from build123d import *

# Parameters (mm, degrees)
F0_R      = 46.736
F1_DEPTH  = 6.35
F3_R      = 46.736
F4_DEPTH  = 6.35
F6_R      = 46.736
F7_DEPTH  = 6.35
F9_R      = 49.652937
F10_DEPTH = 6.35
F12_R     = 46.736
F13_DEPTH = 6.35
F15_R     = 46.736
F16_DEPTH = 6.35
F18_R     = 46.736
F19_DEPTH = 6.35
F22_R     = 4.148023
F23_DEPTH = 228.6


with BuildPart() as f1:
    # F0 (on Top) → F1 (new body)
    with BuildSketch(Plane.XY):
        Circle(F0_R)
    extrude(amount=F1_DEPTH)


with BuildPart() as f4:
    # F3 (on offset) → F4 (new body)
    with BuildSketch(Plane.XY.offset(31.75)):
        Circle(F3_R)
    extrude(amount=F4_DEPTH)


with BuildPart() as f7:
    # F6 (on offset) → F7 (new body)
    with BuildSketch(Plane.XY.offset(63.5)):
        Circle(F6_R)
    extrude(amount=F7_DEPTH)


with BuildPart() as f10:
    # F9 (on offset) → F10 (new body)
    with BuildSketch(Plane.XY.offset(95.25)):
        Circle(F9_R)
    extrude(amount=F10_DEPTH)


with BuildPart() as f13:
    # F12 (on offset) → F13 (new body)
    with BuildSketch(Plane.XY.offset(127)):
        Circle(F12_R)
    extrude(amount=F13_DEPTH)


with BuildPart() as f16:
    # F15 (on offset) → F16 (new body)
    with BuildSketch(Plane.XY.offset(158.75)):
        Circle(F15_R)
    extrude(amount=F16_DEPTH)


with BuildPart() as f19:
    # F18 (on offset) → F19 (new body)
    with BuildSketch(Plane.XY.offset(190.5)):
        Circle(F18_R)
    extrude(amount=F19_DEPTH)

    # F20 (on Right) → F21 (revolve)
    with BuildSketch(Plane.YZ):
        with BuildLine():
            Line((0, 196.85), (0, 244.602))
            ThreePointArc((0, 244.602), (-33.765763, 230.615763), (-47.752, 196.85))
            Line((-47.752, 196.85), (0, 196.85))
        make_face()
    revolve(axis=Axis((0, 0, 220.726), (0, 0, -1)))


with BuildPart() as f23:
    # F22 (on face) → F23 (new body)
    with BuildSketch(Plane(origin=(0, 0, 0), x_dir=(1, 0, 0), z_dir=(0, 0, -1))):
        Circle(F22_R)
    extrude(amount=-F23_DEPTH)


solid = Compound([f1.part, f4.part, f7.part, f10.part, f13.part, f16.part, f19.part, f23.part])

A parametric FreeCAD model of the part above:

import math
import FreeCAD as App
import Part
import Sketcher
from FreeCAD import Vector
Q = App.Units.Quantity

doc = App.newDocument("Part")
body = doc.addObject("PartDesign::Body", "Body")

sketch1 = doc.addObject("Sketcher::SketchObject", "Sketch")
body.addObject(sketch1)
sketch1.AttachmentSupport = (doc.XY_Plane, [""])
sketch1.MapMode = "FlatFace"
sketch1.addGeometry(Part.Circle(Vector(0, 0, 0), Vector(0, 0, 1), 47), False)
sketch1.addConstraint([
    Sketcher.Constraint("Coincident", 0, 3, -1, 1),
    Sketcher.Constraint("Diameter", 0, Q("3.68 in")),
])
pad1 = doc.addObject("PartDesign::Pad", "Pad")
body.addObject(pad1)
pad1.Profile = sketch1
pad1.Length = Q("0.25 in")
body2 = doc.addObject("PartDesign::Body", "Body001")

sketch2 = doc.addObject("Sketcher::SketchObject", "Sketch001")
body2.addObject(sketch2)
sketch2.AttachmentSupport = (doc.getObject("XY_Plane001"), [""])
sketch2.MapMode = "FlatFace"
sketch2.AttachmentOffset = App.Placement(Vector(0, 0, 1.25 * 25.4), App.Rotation())
sketch2.addGeometry(Part.Circle(Vector(0, 0, 0), Vector(0, 0, 1), 47), False)
sketch2.addConstraint([
    Sketcher.Constraint("Coincident", 0, 3, -1, 1),
    Sketcher.Constraint("Diameter", 0, Q("3.68 in")),
])
pad2 = doc.addObject("PartDesign::Pad", "Pad001")
body2.addObject(pad2)
pad2.Profile = sketch2
pad2.Length = Q("0.25 in")
body3 = doc.addObject("PartDesign::Body", "Body002")

sketch3 = doc.addObject("Sketcher::SketchObject", "Sketch002")
body3.addObject(sketch3)
sketch3.AttachmentSupport = (doc.getObject("XY_Plane002"), [""])
sketch3.MapMode = "FlatFace"
sketch3.AttachmentOffset = App.Placement(Vector(0, 0, 2.5 * 25.4), App.Rotation())
sketch3.addGeometry(Part.Circle(Vector(0, 0, 0), Vector(0, 0, 1), 47), False)
sketch3.addConstraint([
    Sketcher.Constraint("Coincident", 0, 3, -1, 1),
    Sketcher.Constraint("Diameter", 0, Q("3.68 in")),
])
pad3 = doc.addObject("PartDesign::Pad", "Pad002")
body3.addObject(pad3)
pad3.Profile = sketch3
pad3.Length = Q("0.25 in")
body4 = doc.addObject("PartDesign::Body", "Body003")

sketch4 = doc.addObject("Sketcher::SketchObject", "Sketch003")
body4.addObject(sketch4)
sketch4.AttachmentSupport = (doc.getObject("XY_Plane003"), [""])
sketch4.MapMode = "FlatFace"
sketch4.AttachmentOffset = App.Placement(Vector(0, 0, 3.75 * 25.4), App.Rotation())
sketch4.addGeometry(Part.Circle(Vector(0, 0, 0), Vector(0, 0, 1), 50), False)
sketch4.addConstraint([
    Sketcher.Constraint("Coincident", 0, 3, -1, 1),
    Sketcher.Constraint("Diameter", 0, Q("99.305874 mm")),
])
pad4 = doc.addObject("PartDesign::Pad", "Pad003")
body4.addObject(pad4)
pad4.Profile = sketch4
pad4.Length = Q("0.25 in")
body5 = doc.addObject("PartDesign::Body", "Body004")

sketch5 = doc.addObject("Sketcher::SketchObject", "Sketch004")
body5.addObject(sketch5)
sketch5.AttachmentSupport = (doc.getObject("XY_Plane004"), [""])
sketch5.MapMode = "FlatFace"
sketch5.AttachmentOffset = App.Placement(Vector(0, 0, 5 * 25.4), App.Rotation())
sketch5.addGeometry(Part.Circle(Vector(0, 0, 0), Vector(0, 0, 1), 47), False)
sketch5.addConstraint([
    Sketcher.Constraint("Coincident", 0, 3, -1, 1),
    Sketcher.Constraint("Diameter", 0, Q("3.68 in")),
])
pad5 = doc.addObject("PartDesign::Pad", "Pad004")
body5.addObject(pad5)
pad5.Profile = sketch5
pad5.Length = Q("0.25 in")
body6 = doc.addObject("PartDesign::Body", "Body005")

sketch6 = doc.addObject("Sketcher::SketchObject", "Sketch005")
body6.addObject(sketch6)
sketch6.AttachmentSupport = (doc.getObject("XY_Plane005"), [""])
sketch6.MapMode = "FlatFace"
sketch6.AttachmentOffset = App.Placement(Vector(0, 0, 6.25 * 25.4), App.Rotation())
sketch6.addGeometry(Part.Circle(Vector(0, 0, 0), Vector(0, 0, 1), 47), False)
sketch6.addConstraint([
    Sketcher.Constraint("Coincident", 0, 3, -1, 1),
    Sketcher.Constraint("Diameter", 0, Q("3.68 in")),
])
pad6 = doc.addObject("PartDesign::Pad", "Pad005")
body6.addObject(pad6)
pad6.Profile = sketch6
pad6.Length = Q("0.25 in")
body7 = doc.addObject("PartDesign::Body", "Body006")

sketch7 = doc.addObject("Sketcher::SketchObject", "Sketch006")
body7.addObject(sketch7)
sketch7.AttachmentSupport = (doc.getObject("XY_Plane006"), [""])
sketch7.MapMode = "FlatFace"
sketch7.AttachmentOffset = App.Placement(Vector(0, 0, 7.5 * 25.4), App.Rotation())
sketch7.addGeometry(Part.Circle(Vector(0, 0, 0), Vector(0, 0, 1), 47), False)
sketch7.addConstraint([
    Sketcher.Constraint("Coincident", 0, 3, -1, 1),
    Sketcher.Constraint("Diameter", 0, Q("3.68 in")),
])
pad7 = doc.addObject("PartDesign::Pad", "Pad006")
body7.addObject(pad7)
pad7.Profile = sketch7
pad7.Length = Q("0.25 in")

sketch8 = doc.addObject("Sketcher::SketchObject", "Sketch007")
body7.addObject(sketch8)
sketch8.AttachmentSupport = (doc.getObject("YZ_Plane006"), [""])
sketch8.MapMode = "FlatFace"
sketch8.addGeometry([
    Part.LineSegment(Vector(0, 197, 0), Vector(0, 245, 0)),
    Part.ArcOfCircle(Part.Circle(Vector(0, 197, 0), Vector(0, 0, 1), 48), math.radians(90), math.radians(180)),
    Part.LineSegment(Vector(-48, 197, 0), Vector(0, 197, 0)),
], False)
sketch8.addConstraint([
    Sketcher.Constraint("Coincident", 0, 2, 1, 1),
    Sketcher.Constraint("Coincident", 1, 2, 2, 1),
    Sketcher.Constraint("Coincident", 2, 2, 0, 1),
    Sketcher.Constraint("Vertical", 0),
    Sketcher.Constraint("Horizontal", 2),
    Sketcher.Constraint("Coincident", 2, 2, 1, 3),
    Sketcher.Constraint("PointOnObject", 1, 3, -2),
    Sketcher.Constraint("Radius", 1, Q("1.88 in")),
    Sketcher.Constraint("DistanceY", -1, 1, 1, 3, Q("7.75 in")),
])
revolution = doc.addObject("PartDesign::Revolution", "Revolution")
body7.addObject(revolution)
revolution.Profile = sketch8
revolution.ReferenceAxis = (sketch8, ["V_Axis"])
revolution.Angle = 360
body8 = doc.addObject("PartDesign::Body", "Body007")

sketch9 = doc.addObject("Sketcher::SketchObject", "Sketch008")
body8.addObject(sketch9)
sketch9.AttachmentSupport = (doc.getObject("XY_Plane007"), [""])
sketch9.MapMode = "FlatFace"
sketch9.addGeometry(Part.Circle(Vector(0, 0, 0), Vector(0, 0, 1), 4.1), False)
sketch9.addConstraint([
    Sketcher.Constraint("Coincident", 0, 3, -1, 1),
    Sketcher.Constraint("Diameter", 0, Q("8.296046 mm")),
])
pad8 = doc.addObject("PartDesign::Pad", "Pad007")
body8.addObject(pad8)
pad8.Profile = sketch9
pad8.Length = Q("9 in")

doc.recompute()
